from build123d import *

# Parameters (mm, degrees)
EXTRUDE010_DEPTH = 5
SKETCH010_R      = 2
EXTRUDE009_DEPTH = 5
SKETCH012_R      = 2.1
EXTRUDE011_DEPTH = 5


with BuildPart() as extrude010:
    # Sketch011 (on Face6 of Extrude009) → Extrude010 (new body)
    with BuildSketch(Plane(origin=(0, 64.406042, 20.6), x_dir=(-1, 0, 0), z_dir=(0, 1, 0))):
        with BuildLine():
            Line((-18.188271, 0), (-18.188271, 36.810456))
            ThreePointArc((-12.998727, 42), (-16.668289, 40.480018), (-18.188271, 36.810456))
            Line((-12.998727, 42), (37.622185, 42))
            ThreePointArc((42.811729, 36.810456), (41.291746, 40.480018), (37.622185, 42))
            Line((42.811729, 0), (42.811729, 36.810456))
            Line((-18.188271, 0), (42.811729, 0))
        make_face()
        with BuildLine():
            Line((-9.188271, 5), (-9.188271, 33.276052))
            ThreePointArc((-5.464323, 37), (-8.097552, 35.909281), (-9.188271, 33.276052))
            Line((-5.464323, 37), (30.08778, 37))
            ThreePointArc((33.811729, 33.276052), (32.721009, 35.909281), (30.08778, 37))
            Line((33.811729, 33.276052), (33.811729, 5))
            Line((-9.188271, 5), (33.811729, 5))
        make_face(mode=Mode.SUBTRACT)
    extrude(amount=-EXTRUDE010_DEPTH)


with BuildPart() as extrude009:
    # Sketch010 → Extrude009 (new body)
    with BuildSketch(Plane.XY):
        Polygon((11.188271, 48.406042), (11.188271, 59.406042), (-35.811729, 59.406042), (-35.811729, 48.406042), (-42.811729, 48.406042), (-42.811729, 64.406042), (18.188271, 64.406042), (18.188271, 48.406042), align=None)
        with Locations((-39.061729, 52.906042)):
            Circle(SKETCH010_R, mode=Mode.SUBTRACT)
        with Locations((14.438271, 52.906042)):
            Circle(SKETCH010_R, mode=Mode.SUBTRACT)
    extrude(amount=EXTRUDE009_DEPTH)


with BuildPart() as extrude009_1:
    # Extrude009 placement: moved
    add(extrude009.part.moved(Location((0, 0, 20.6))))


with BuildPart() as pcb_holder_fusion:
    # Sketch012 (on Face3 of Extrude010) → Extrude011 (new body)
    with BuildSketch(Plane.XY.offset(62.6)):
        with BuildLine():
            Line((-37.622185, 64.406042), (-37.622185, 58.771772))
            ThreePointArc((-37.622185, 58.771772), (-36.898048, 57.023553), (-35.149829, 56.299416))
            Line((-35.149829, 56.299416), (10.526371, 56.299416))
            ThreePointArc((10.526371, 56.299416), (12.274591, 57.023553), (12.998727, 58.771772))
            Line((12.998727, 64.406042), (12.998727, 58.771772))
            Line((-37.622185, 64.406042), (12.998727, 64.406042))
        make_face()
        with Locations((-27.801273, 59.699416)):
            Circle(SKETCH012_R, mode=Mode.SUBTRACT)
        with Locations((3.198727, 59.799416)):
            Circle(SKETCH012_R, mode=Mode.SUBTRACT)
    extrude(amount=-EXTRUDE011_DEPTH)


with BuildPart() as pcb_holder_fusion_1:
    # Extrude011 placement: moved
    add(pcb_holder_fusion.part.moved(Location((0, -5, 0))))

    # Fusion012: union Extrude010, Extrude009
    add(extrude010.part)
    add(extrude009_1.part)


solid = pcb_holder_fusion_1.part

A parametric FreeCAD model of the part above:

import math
import FreeCAD as App
import Part
import Sketcher
from FreeCAD import Vector

doc = App.newDocument("Part")
body = doc.addObject("PartDesign::Body", "Body")

# Sketch on XZ plane
sketch1 = body.newObject("Sketcher::SketchObject", "Sketch")
sketch1.AttachmentSupport = (doc.getObject("XZ_Plane"), [""])
sketch1.MapMode = "FlatFace"
sketch1.AttachmentOffset = App.Placement(Vector(0, 0, -64.406042), App.Rotation())
sketch1.addGeometry(Part.LineSegment(Vector(18.2, 57.4, 0), Vector(18.2, 20.6, 0)), False)
sketch1.addGeometry(Part.LineSegment(Vector(18.2, 20.6, 0), Vector(-42.8, 20.6, 0)), False)
sketch1.addGeometry(Part.LineSegment(Vector(-42.8, 20.6, 0), Vector(-42.8, 57.4, 0)), False)
sketch1.addGeometry(Part.ArcOfCircle(Part.Circle(Vector(-37.6, 57.4, 0), Vector(0, 0, 1), 5.2), math.radians(90), math.radians(180)), False)
sketch1.addGeometry(Part.LineSegment(Vector(-37.6, 62.6, 0), Vector(13, 62.6, 0)), False)
sketch1.addGeometry(Part.ArcOfCircle(Part.Circle(Vector(13, 57.4, 0), Vector(0, 0, 1), 5.2), math.radians(0), math.radians(90)), False)
sketch1.addGeometry(Part.LineSegment(Vector(9.2, 25.6, 0), Vector(9.2, 53.9, 0)), False)
sketch1.addGeometry(Part.ArcOfCircle(Part.Circle(Vector(5.5, 53.9, 0), Vector(0, 0, 1), 3.7), math.radians(0), math.radians(90)), False)
sketch1.addGeometry(Part.LineSegment(Vector(5.5, 57.6, 0), Vector(-30.1, 57.6, 0)), False)
sketch1.addGeometry(Part.ArcOfCircle(Part.Circle(Vector(-30.1, 53.9, 0), Vector(0, 0, 1), 3.7), math.radians(90), math.radians(180)), False)
sketch1.addGeometry(Part.LineSegment(Vector(-33.8, 53.9, 0), Vector(-33.8, 25.6, 0)), False)
sketch1.addGeometry(Part.LineSegment(Vector(-33.8, 25.6, 0), Vector(9.2, 25.6, 0)), False)
sketch1.addConstraint(Sketcher.Constraint("Coincident", 0, 2, 1, 1))
sketch1.addConstraint(Sketcher.Constraint("Coincident", 1, 2, 2, 1))
sketch1.addConstraint(Sketcher.Constraint("Tangent", 2, 2, 3, 2))
sketch1.addConstraint(Sketcher.Constraint("Tangent", 3, 1, 4, 1))
sketch1.addConstraint(Sketcher.Constraint("Tangent", 4, 2, 5, 2))
sketch1.addConstraint(Sketcher.Constraint("Tangent", 5, 1, 0, 1))
sketch1.addConstraint(Sketcher.Constraint("Tangent", 6, 2, 7, 1))
sketch1.addConstraint(Sketcher.Constraint("Tangent", 7, 2, 8, 1))
sketch1.addConstraint(Sketcher.Constraint("Tangent", 8, 2, 9, 1))
sketch1.addConstraint(Sketcher.Constraint("Tangent", 9, 2, 10, 1))
sketch1.addConstraint(Sketcher.Constraint("Coincident", 10, 2, 11, 1))
sketch1.addConstraint(Sketcher.Constraint("Coincident", 11, 2, 6, 1))
sketch1.addConstraint(Sketcher.Constraint("Vertical", 0))
sketch1.addConstraint(Sketcher.Constraint("Horizontal", 1))
sketch1.addConstraint(Sketcher.Constraint("Vertical", 2))
sketch1.addConstraint(Sketcher.Constraint("Horizontal", 4))
sketch1.addConstraint(Sketcher.Constraint("Vertical", 6))
sketch1.addConstraint(Sketcher.Constraint("Horizontal", 8))
sketch1.addConstraint(Sketcher.Constraint("Vertical", 10))
sketch1.addConstraint(Sketcher.Constraint("Horizontal", 11))
sketch1.addConstraint(Sketcher.Constraint("Equal", 3, 5))
sketch1.addConstraint(Sketcher.Constraint("Equal", 7, 9))
sketch1.addConstraint(Sketcher.Constraint("DistanceX", 1, 2, 1, 1, 61.0))
sketch1.addConstraint(Sketcher.Constraint("DistanceX", 11, 1, 11, 2, 43.0))
sketch1.addConstraint(Sketcher.Constraint("DistanceY", 1, 2, 3, 1, 42.0))
sketch1.addConstraint(Sketcher.Constraint("DistanceX", 6, 2, 5, 1, 9.0))
sketch1.addConstraint(Sketcher.Constraint("DistanceY", 7, 2, 4, 2, 5.0))
sketch1.addConstraint(Sketcher.Constraint("DistanceY", 1, 2, 10, 2, 5.0))
sketch1.addConstraint(Sketcher.Constraint("DistanceY", -1, 1, 0, 2, 20.6))
sketch1.addConstraint(Sketcher.Constraint("Radius", 9, 3.723949))
sketch1.addConstraint(Sketcher.Constraint("Radius", 3, 5.189545))
sketch1.addConstraint(Sketcher.Constraint("DistanceX", 9, 3, -1, 1, 30.08778))
pad1 = body.newObject("PartDesign::Pad", "Pad")
pad1.Profile = sketch1
pad1.Length = 5
body2 = doc.addObject("PartDesign::Body", "Body001")

# Sketch on XY plane
sketch2 = body2.newObject("Sketcher::SketchObject", "Sketch001")
sketch2.AttachmentSupport = (doc.getObject("XY_Plane001"), [""])
sketch2.MapMode = "FlatFace"
sketch2.addGeometry(Part.LineSegment(Vector(11.2, 59.4, 0), Vector(11.2, 48.4, 0)), False)
sketch2.addGeometry(Part.LineSegment(Vector(11.2, 48.4, 0), Vector(18.2, 48.4, 0)), False)
sketch2.addGeometry(Part.LineSegment(Vector(18.2, 48.4, 0), Vector(18.2, 64.4, 0)), False)
sketch2.addGeometry(Part.LineSegment(Vector(18.2, 64.4, 0), Vector(-42.8, 64.4, 0)), False)
sketch2.addGeometry(Part.LineSegment(Vector(-42.8, 64.4, 0), Vector(-42.8, 48.4, 0)), False)
sketch2.addGeometry(Part.LineSegment(Vector(-42.8, 48.4, 0), Vector(-35.8, 48.4, 0)), False)
sketch2.addGeometry(Part.LineSegment(Vector(-35.8, 48.4, 0), Vector(-35.8, 59.4, 0)), False)
sketch2.addGeometry(Part.LineSegment(Vector(-35.8, 59.4, 0), Vector(11.2, 59.4, 0)), False)
sketch2.addGeometry(Part.Circle(Vector(14.4, 52.9, 0), Vector(0, 0, 1), 2), False)
sketch2.addGeometry(Part.Circle(Vector(-39.1, 52.9, 0), Vector(0, 0, 1), 2), False)
sketch2.addConstraint(Sketcher.Constraint("Coincident", 0, 2, 1, 1))
sketch2.addConstraint(Sketcher.Constraint("Coincident", 1, 2, 2, 1))
sketch2.addConstraint(Sketcher.Constraint("Coincident", 2, 2, 3, 1))
sketch2.addConstraint(Sketcher.Constraint("Coincident", 3, 2, 4, 1))
sketch2.addConstraint(Sketcher.Constraint("Coincident", 4, 2, 5, 1))
sketch2.addConstraint(Sketcher.Constraint("Coincident", 5, 2, 6, 1))
sketch2.addConstraint(Sketcher.Constraint("Coincident", 6, 2, 7, 1))
sketch2.addConstraint(Sketcher.Constraint("Coincident", 7, 2, 0, 1))
sketch2.addConstraint(Sketcher.Constraint("Vertical", 0))
sketch2.addConstraint(Sketcher.Constraint("Horizontal", 1))
sketch2.addConstraint(Sketcher.Constraint("Vertical", 2))
sketch2.addConstraint(Sketcher.Constraint("Horizontal", 3))
sketch2.addConstraint(Sketcher.Constraint("Vertical", 4))
sketch2.addConstraint(Sketcher.Constraint("Horizontal", 5))
sketch2.addConstraint(Sketcher.Constraint("Vertical", 6))
sketch2.addConstraint(Sketcher.Constraint("Horizontal", 7))
sketch2.addConstraint(Sketcher.Constraint("Equal", 8, 9))
sketch2.addConstraint(Sketcher.Constraint("Horizontal", 8, 3, 9, 3))
sketch2.addConstraint(Sketcher.Constraint("Horizontal", 1, 2, 4, 2))
sketch2.addConstraint(Sketcher.Constraint("Equal", 1, 5))
sketch2.addConstraint(Sketcher.Constraint("Diameter", 8, 4.0))
sketch2.addConstraint(Sketcher.Constraint("DistanceX", 1, 1, 1, 2, 7.0))
sketch2.addConstraint(Sketcher.Constraint("DistanceX", 3, 2, 3, 1, 61.0))
sketch2.addConstraint(Sketcher.Constraint("DistanceY", 0, 2, 0, 1, 11.0))
sketch2.addConstraint(Sketcher.Constraint("DistanceY", 2, 1, 2, 2, 16.0))
sketch2.addConstraint(Sketcher.Constraint("DistanceX", 9, 3, 8, 3, 53.5))
sketch2.addConstraint(Sketcher.Constraint("DistanceY", 0, 2, 8, 3, 4.5))
sketch2.addConstraint(Sketcher.Constraint("DistanceX", 0, 2, 8, 3, 3.25))
sketch2.addConstraint(Sketcher.Constraint("DistanceX", -1, 1, 8, 3, 14.438271))
sketch2.addConstraint(Sketcher.Constraint("DistanceY", -1, 1, 2, 2, 64.406042))
pad2 = body2.newObject("PartDesign::Pad", "Pad001")
pad2.Profile = sketch2
pad2.Length = 5
body3 = doc.addObject("PartDesign::Body", "Body002")
doc.recompute()

body2.Placement = App.Placement(Vector(0, 0, 20.6), App.Rotation(Vector(0, 0, 1), 0))
boolean = body3.newObject("PartDesign::Boolean", "Boolean")
boolean.Type = "Fuse"
boolean.addObjects([body2])
body4 = doc.addObject("PartDesign::Body", "Body003")

# Sketch on XY plane
sketch3 = body4.newObject("Sketcher::SketchObject", "Sketch002")
sketch3.AttachmentSupport = (doc.getObject("XY_Plane003"), [""])
sketch3.MapMode = "FlatFace"
sketch3.AttachmentOffset = App.Placement(Vector(0, 0, 62.6), App.Rotation())
sketch3.addGeometry(Part.LineSegment(Vector(-37.6, 64.4, 0), Vector(-37.6, 58.8, 0)), False)
sketch3.addGeometry(Part.ArcOfCircle(Part.Circle(Vector(-35.1, 58.8, 0), Vector(0, 0, 1), 2.5), math.radians(-180), math.radians(-90)), False)
sketch3.addGeometry(Part.LineSegment(Vector(-35.1, 56.3, 0), Vector(10.5, 56.3, 0)), False)
sketch3.addGeometry(Part.ArcOfCircle(Part.Circle(Vector(10.5, 58.8, 0), Vector(0, 0, 1), 2.5), math.radians(-90), math.radians(0)), False)
sketch3.addGeometry(Part.LineSegment(Vector(13, 58.8, 0), Vector(13, 64.4, 0)), False)
sketch3.addGeometry(Part.LineSegment(Vector(13, 64.4, 0), Vector(-37.6, 64.4, 0)), False)
sketch3.addGeometry(Part.Circle(Vector(-27.8, 59.7, 0), Vector(0, 0, 1), 2.1), False)
sketch3.addGeometry(Part.Circle(Vector(3.2, 59.8, 0), Vector(0, 0, 1), 2.1), False)
sketch3.addConstraint(Sketcher.Constraint("Tangent", 0, 2, 1, 1))
sketch3.addConstraint(Sketcher.Constraint("Tangent", 1, 2, 2, 1))
sketch3.addConstraint(Sketcher.Constraint("Tangent", 2, 2, 3, 1))
sketch3.addConstraint(Sketcher.Constraint("Tangent", 3, 2, 4, 1))
sketch3.addConstraint(Sketcher.Constraint("Coincident", 4, 2, 5, 1))
sketch3.addConstraint(Sketcher.Constraint("Coincident", 5, 2, 0, 1))
sketch3.addConstraint(Sketcher.Constraint("Vertical", 0))
sketch3.addConstraint(Sketcher.Constraint("Horizontal", 2))
sketch3.addConstraint(Sketcher.Constraint("Vertical", 4))
sketch3.addConstraint(Sketcher.Constraint("Horizontal", 5))
sketch3.addConstraint(Sketcher.Constraint("Equal", 1, 3))
sketch3.addConstraint(Sketcher.Constraint("Equal", 6, 7))
sketch3.addConstraint(Sketcher.Constraint("Diameter", 6, 4.2))
sketch3.addConstraint(Sketcher.Constraint("DistanceX", 6, 3, 7, 3, 31.0))
sketch3.addConstraint(Sketcher.Constraint("DistanceY", 6, 3, 7, 3, 0.1))
sketch3.addConstraint(Sketcher.Constraint("DistanceY", 1, 2, 6, 3, 3.4))
sketch3.addConstraint(Sketcher.Constraint("DistanceX", 7, 3, 3, 2, 9.8))
sketch3.addConstraint(Sketcher.Constraint("Radius", 1, 2.472358))
sketch3.addConstraint(Sketcher.Constraint("DistanceX", 2, 1, 2, 2, 45.6762))
sketch3.addConstraint(Sketcher.Constraint("DistanceY", 0, 2, 0, 1, 5.63427))
sketch3.addConstraint(Sketcher.Constraint("DistanceX", -1, 1, 3, 3, 10.52637))
sketch3.addConstraint(Sketcher.Constraint("DistanceY", -1, 1, 4, 2, 64.406042))
pad3 = body4.newObject("PartDesign::Pad", "Pad002")
pad3.Profile = sketch3
pad3.Length = 5
pad3.Reversed = True
body5 = doc.addObject("PartDesign::Body", "Body004")
doc.recompute()

body4.Placement = App.Placement(Vector(0, -5, 0), App.Rotation(Vector(0, 0, 1), 0))
boolean2 = body5.newObject("PartDesign::Boolean", "Boolean001")
boolean2.Type = "Fuse"
boolean2.addObjects([body4])
doc.recompute()

boolean3 = body5.newObject("PartDesign::Boolean", "Boolean002")
boolean3.Type = "Fuse"
boolean3.addObjects([body])
doc.recompute()

boolean4 = body5.newObject("PartDesign::Boolean", "Boolean003")
boolean4.Type = "Fuse"
boolean4.addObjects([body3])

doc.recompute()
